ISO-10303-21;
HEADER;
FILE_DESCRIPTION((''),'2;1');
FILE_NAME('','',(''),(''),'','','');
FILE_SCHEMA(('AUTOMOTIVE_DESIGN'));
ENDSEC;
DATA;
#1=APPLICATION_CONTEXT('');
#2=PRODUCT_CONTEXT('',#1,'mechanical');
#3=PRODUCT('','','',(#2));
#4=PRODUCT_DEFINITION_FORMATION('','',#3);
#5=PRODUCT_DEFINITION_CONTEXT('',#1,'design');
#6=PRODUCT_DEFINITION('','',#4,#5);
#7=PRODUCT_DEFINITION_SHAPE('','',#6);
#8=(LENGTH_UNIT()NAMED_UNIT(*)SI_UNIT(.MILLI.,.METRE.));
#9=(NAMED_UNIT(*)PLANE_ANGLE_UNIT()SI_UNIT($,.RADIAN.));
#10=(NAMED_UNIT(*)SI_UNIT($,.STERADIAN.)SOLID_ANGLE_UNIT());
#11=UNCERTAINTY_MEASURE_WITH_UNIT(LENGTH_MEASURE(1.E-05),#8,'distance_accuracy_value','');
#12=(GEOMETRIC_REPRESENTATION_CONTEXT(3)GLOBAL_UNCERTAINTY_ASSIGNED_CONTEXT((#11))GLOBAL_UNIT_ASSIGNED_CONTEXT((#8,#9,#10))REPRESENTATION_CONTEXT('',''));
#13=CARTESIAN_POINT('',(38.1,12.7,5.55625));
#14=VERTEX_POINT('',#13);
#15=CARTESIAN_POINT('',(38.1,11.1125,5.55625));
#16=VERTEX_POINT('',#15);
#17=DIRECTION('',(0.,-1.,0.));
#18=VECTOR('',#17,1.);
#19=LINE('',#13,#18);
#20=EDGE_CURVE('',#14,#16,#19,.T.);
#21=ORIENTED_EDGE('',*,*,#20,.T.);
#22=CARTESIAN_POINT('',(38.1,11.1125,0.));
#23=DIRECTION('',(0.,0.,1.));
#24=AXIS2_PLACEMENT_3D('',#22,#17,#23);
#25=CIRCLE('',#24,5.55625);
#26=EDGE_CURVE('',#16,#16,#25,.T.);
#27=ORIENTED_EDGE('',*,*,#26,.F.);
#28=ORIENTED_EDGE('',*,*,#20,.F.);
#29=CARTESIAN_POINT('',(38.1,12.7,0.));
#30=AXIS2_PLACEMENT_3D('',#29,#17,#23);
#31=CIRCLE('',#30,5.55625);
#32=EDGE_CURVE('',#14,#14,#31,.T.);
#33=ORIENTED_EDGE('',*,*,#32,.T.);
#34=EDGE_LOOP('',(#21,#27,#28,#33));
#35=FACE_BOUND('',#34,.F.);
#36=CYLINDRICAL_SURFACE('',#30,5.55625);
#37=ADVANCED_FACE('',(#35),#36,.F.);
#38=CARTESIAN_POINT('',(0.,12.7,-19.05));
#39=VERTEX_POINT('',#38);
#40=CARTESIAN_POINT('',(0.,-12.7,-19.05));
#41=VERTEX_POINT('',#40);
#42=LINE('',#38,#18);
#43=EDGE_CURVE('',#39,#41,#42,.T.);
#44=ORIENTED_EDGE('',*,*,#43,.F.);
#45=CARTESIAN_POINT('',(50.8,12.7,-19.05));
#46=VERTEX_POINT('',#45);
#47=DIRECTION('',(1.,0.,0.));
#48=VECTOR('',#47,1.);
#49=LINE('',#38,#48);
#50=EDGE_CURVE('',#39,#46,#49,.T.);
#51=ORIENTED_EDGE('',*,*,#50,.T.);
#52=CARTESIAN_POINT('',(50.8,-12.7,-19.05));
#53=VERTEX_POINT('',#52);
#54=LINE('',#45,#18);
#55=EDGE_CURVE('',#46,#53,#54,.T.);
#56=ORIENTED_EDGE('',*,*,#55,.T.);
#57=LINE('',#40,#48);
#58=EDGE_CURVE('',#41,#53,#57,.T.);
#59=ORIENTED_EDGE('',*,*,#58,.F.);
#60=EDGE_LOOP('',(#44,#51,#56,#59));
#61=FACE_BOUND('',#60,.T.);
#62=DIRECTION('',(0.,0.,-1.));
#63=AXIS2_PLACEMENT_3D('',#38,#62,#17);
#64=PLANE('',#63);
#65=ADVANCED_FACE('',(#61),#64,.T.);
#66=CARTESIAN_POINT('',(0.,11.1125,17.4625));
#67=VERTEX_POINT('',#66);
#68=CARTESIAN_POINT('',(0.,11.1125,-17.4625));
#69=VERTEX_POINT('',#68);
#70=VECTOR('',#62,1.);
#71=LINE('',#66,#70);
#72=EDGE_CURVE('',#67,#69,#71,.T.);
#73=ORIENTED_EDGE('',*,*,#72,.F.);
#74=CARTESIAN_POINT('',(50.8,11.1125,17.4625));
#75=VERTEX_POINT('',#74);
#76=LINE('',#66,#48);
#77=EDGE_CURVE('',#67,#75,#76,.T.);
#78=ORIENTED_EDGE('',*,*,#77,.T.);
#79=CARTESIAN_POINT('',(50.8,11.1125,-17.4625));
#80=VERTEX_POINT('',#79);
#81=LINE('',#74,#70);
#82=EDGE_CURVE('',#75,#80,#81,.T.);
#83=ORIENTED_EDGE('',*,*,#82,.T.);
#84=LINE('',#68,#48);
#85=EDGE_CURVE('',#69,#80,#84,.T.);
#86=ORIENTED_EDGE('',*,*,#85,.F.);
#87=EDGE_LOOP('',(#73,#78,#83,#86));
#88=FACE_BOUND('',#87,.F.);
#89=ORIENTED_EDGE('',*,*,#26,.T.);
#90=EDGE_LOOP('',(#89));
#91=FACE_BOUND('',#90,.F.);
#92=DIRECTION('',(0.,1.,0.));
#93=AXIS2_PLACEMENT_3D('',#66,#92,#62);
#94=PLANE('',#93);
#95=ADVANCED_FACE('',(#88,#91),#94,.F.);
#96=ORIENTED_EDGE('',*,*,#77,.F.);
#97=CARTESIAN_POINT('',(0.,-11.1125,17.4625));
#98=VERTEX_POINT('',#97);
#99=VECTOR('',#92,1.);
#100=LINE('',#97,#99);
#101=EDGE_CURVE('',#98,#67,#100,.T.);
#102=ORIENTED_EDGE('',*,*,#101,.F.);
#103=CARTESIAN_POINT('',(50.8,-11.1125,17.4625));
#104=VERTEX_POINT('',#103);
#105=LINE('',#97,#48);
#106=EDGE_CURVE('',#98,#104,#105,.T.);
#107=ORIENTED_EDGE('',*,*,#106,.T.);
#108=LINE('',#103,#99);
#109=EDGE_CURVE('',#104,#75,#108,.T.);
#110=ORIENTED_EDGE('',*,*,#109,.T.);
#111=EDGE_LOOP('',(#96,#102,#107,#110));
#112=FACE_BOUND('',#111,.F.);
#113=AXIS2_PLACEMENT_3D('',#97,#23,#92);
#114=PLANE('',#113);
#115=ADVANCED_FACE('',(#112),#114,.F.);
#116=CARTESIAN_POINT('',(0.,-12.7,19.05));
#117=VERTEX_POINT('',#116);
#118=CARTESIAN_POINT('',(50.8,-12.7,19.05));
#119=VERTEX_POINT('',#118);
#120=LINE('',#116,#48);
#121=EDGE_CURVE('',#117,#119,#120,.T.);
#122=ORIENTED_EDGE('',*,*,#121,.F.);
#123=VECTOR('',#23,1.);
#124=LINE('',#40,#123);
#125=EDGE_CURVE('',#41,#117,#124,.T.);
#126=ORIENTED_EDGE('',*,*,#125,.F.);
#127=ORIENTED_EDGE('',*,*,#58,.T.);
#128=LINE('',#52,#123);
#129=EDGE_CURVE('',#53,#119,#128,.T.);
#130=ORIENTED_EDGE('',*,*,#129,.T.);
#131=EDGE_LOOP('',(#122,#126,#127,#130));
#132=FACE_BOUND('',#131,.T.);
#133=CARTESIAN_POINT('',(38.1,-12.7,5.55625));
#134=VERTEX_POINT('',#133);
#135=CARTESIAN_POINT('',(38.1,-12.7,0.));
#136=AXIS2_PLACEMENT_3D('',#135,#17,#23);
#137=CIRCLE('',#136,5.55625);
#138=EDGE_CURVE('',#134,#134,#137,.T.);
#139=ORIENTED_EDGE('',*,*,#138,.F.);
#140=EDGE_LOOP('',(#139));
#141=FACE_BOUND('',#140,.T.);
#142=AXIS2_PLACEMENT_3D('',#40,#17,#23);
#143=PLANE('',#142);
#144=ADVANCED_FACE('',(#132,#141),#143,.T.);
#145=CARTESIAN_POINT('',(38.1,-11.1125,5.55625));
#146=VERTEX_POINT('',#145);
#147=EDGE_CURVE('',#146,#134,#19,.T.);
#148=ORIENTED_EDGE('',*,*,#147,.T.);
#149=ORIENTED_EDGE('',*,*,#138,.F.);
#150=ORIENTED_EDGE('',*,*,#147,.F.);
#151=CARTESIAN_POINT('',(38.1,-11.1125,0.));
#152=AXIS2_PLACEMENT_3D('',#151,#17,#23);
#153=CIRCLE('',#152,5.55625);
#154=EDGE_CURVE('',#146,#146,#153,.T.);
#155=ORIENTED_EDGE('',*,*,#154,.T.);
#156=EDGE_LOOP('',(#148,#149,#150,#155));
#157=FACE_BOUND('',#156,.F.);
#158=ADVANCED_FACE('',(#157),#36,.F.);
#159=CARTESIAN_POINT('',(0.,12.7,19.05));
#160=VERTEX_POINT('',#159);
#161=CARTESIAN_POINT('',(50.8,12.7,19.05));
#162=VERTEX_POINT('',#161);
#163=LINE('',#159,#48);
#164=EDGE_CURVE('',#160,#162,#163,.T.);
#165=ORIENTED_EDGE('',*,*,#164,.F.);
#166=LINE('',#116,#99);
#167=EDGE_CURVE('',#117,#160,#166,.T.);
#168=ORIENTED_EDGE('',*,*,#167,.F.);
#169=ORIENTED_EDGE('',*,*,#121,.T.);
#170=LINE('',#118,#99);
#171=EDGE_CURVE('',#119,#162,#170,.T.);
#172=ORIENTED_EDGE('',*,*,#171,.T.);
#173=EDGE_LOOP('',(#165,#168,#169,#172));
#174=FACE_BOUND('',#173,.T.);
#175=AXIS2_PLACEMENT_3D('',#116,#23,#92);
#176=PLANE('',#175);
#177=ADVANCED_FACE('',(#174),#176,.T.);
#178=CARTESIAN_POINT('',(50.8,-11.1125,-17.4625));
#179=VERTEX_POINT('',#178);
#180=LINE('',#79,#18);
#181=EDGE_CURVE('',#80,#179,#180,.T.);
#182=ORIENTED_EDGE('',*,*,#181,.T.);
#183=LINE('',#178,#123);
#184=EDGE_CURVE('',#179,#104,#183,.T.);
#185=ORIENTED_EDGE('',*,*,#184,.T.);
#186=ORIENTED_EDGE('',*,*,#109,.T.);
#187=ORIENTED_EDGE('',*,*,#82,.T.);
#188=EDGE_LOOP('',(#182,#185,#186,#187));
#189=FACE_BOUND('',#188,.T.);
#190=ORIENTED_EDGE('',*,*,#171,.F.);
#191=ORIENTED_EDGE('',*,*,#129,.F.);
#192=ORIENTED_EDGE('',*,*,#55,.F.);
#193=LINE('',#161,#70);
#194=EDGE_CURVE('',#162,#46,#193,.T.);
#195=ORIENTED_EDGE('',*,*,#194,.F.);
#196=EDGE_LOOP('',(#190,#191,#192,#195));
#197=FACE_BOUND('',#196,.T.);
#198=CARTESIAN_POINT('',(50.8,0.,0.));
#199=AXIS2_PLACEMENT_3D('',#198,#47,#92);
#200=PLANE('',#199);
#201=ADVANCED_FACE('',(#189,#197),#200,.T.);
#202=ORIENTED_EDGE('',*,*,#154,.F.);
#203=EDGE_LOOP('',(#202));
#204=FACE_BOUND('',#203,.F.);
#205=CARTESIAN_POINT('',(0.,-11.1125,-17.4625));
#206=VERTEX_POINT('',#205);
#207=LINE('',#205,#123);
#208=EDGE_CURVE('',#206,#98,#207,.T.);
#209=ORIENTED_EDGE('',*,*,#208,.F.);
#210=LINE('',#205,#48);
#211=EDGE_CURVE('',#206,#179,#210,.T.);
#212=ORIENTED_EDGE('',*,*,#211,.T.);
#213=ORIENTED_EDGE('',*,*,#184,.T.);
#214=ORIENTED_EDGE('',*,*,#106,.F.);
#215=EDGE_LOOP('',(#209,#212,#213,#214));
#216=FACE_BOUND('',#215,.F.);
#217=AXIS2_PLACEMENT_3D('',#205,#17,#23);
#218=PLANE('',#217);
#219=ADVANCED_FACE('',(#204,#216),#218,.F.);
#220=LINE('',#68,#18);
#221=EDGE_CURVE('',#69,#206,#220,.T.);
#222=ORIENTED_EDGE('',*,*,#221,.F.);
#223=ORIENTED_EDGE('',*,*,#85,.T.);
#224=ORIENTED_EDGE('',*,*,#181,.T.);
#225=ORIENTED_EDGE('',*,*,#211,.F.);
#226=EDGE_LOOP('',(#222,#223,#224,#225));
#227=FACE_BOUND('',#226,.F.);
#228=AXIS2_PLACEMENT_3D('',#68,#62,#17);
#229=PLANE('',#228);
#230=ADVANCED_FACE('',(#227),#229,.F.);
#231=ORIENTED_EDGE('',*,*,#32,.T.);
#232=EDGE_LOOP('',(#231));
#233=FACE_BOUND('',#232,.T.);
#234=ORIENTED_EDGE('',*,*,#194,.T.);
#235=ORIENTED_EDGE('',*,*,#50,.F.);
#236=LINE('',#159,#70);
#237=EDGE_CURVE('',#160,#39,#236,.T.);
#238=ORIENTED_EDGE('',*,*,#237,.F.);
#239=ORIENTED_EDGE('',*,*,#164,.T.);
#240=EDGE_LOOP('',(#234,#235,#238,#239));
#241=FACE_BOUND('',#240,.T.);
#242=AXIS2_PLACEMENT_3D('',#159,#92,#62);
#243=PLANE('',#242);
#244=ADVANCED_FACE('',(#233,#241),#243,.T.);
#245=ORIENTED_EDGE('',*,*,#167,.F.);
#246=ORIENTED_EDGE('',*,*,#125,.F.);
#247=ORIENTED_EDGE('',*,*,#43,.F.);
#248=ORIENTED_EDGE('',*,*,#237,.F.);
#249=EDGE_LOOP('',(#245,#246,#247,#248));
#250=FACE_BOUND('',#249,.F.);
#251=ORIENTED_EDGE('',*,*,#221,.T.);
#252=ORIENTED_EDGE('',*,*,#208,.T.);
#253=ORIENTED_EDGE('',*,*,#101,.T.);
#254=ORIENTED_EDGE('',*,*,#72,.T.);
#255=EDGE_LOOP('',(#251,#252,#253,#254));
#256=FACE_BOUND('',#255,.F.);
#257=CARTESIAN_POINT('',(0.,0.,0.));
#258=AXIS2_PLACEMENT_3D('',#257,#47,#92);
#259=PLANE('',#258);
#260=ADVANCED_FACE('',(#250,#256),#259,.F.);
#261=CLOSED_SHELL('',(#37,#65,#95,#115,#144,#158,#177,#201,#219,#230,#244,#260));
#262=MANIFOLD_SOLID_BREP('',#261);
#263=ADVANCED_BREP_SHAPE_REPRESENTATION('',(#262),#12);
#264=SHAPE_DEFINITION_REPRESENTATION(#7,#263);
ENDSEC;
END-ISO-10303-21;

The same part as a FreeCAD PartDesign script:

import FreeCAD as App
import Part
import Sketcher

V = App.Vector
Q = App.Units.Quantity


def add_polygon(sketch, points):
    """Adds a closed chain of lines whose ends are joined by coincident constraints."""
    first, n = sketch.GeometryCount, len(points)
    for a, b in zip(points, points[1:] + points[:1]):
        sketch.addGeometry(Part.LineSegment(App.Vector(*a, 0), App.Vector(*b, 0)), False)
    for i in range(n):
        sketch.addConstraint(Sketcher.Constraint("Coincident", first + i, 2, first + (i + 1) % n, 1))

doc = App.newDocument("Part")
body = doc.addObject("PartDesign::Body", "Body")

# Sketch on YZ plane
sketch1 = body.newObject("Sketcher::SketchObject", "Sketch")
sketch1.AttachmentSupport = (doc.getObject("YZ_Plane"), [""])
sketch1.MapMode = "FlatFace"
add_polygon(sketch1, [(13, 19), (-13, 19), (-13, -19), (13, -19)])  # lines 0-3
add_polygon(sketch1, [(-11, -17), (-11, 17), (11, 17), (11, -17)])  # lines 4-7
sketch1.addConstraint([
    Sketcher.Constraint("Horizontal", 0),
    Sketcher.Constraint("Vertical", 1),
    Sketcher.Constraint("Horizontal", 2),
    Sketcher.Constraint("Vertical", 3),
    Sketcher.Constraint("Vertical", 4),
    Sketcher.Constraint("Horizontal", 5),
    Sketcher.Constraint("Vertical", 6),
    Sketcher.Constraint("Horizontal", 7),
    Sketcher.Constraint("Symmetric", 0, 2, 2, 2, -1, 1),
    Sketcher.Constraint("Symmetric", 4, 2, 6, 2, -1, 1),
    Sketcher.Constraint("DistanceX", 0, 2, 0, 1, Q("1 in")),
    Sketcher.Constraint("DistanceY", 1, 2, 1, 1, Q("1.5 in")),
    Sketcher.Constraint("DistanceX", 0, 2, 4, 2, Q("0.0625 in")),
    Sketcher.Constraint("DistanceY", 4, 2, 0, 2, Q("0.0625 in")),
])
pad1 = body.newObject("PartDesign::Pad", "Pad")
pad1.Profile = sketch1
pad1.Length = Q("2 in")

# Sketch on XZ plane
sketch2 = body.newObject("Sketcher::SketchObject", "Sketch001")
sketch2.AttachmentSupport = (doc.getObject("XZ_Plane"), [""])
sketch2.MapMode = "FlatFace"
sketch2.AttachmentOffset = App.Placement(V(0, 0, -0.5 * 25.4), App.Rotation())
sketch2.addGeometry(Part.Circle(V(38, 0, 0), V(0, 0, 1), 6), False)
sketch2.addConstraint([
    Sketcher.Constraint("PointOnObject", 0, 3, -1),
    Sketcher.Constraint("Diameter", 0, Q("0.4375 in")),
    Sketcher.Constraint("DistanceX", -1, 1, 0, 3, Q("1.5 in")),
])
doc.recompute()
hole = body.newObject("PartDesign::Hole", "Hole")
hole.Profile = sketch2
hole.ThreadType = "None"
hole.Diameter = Q("0.4375 in")
hole.DepthType = "ThroughAll"
hole.Reversed = True

doc.recompute()
